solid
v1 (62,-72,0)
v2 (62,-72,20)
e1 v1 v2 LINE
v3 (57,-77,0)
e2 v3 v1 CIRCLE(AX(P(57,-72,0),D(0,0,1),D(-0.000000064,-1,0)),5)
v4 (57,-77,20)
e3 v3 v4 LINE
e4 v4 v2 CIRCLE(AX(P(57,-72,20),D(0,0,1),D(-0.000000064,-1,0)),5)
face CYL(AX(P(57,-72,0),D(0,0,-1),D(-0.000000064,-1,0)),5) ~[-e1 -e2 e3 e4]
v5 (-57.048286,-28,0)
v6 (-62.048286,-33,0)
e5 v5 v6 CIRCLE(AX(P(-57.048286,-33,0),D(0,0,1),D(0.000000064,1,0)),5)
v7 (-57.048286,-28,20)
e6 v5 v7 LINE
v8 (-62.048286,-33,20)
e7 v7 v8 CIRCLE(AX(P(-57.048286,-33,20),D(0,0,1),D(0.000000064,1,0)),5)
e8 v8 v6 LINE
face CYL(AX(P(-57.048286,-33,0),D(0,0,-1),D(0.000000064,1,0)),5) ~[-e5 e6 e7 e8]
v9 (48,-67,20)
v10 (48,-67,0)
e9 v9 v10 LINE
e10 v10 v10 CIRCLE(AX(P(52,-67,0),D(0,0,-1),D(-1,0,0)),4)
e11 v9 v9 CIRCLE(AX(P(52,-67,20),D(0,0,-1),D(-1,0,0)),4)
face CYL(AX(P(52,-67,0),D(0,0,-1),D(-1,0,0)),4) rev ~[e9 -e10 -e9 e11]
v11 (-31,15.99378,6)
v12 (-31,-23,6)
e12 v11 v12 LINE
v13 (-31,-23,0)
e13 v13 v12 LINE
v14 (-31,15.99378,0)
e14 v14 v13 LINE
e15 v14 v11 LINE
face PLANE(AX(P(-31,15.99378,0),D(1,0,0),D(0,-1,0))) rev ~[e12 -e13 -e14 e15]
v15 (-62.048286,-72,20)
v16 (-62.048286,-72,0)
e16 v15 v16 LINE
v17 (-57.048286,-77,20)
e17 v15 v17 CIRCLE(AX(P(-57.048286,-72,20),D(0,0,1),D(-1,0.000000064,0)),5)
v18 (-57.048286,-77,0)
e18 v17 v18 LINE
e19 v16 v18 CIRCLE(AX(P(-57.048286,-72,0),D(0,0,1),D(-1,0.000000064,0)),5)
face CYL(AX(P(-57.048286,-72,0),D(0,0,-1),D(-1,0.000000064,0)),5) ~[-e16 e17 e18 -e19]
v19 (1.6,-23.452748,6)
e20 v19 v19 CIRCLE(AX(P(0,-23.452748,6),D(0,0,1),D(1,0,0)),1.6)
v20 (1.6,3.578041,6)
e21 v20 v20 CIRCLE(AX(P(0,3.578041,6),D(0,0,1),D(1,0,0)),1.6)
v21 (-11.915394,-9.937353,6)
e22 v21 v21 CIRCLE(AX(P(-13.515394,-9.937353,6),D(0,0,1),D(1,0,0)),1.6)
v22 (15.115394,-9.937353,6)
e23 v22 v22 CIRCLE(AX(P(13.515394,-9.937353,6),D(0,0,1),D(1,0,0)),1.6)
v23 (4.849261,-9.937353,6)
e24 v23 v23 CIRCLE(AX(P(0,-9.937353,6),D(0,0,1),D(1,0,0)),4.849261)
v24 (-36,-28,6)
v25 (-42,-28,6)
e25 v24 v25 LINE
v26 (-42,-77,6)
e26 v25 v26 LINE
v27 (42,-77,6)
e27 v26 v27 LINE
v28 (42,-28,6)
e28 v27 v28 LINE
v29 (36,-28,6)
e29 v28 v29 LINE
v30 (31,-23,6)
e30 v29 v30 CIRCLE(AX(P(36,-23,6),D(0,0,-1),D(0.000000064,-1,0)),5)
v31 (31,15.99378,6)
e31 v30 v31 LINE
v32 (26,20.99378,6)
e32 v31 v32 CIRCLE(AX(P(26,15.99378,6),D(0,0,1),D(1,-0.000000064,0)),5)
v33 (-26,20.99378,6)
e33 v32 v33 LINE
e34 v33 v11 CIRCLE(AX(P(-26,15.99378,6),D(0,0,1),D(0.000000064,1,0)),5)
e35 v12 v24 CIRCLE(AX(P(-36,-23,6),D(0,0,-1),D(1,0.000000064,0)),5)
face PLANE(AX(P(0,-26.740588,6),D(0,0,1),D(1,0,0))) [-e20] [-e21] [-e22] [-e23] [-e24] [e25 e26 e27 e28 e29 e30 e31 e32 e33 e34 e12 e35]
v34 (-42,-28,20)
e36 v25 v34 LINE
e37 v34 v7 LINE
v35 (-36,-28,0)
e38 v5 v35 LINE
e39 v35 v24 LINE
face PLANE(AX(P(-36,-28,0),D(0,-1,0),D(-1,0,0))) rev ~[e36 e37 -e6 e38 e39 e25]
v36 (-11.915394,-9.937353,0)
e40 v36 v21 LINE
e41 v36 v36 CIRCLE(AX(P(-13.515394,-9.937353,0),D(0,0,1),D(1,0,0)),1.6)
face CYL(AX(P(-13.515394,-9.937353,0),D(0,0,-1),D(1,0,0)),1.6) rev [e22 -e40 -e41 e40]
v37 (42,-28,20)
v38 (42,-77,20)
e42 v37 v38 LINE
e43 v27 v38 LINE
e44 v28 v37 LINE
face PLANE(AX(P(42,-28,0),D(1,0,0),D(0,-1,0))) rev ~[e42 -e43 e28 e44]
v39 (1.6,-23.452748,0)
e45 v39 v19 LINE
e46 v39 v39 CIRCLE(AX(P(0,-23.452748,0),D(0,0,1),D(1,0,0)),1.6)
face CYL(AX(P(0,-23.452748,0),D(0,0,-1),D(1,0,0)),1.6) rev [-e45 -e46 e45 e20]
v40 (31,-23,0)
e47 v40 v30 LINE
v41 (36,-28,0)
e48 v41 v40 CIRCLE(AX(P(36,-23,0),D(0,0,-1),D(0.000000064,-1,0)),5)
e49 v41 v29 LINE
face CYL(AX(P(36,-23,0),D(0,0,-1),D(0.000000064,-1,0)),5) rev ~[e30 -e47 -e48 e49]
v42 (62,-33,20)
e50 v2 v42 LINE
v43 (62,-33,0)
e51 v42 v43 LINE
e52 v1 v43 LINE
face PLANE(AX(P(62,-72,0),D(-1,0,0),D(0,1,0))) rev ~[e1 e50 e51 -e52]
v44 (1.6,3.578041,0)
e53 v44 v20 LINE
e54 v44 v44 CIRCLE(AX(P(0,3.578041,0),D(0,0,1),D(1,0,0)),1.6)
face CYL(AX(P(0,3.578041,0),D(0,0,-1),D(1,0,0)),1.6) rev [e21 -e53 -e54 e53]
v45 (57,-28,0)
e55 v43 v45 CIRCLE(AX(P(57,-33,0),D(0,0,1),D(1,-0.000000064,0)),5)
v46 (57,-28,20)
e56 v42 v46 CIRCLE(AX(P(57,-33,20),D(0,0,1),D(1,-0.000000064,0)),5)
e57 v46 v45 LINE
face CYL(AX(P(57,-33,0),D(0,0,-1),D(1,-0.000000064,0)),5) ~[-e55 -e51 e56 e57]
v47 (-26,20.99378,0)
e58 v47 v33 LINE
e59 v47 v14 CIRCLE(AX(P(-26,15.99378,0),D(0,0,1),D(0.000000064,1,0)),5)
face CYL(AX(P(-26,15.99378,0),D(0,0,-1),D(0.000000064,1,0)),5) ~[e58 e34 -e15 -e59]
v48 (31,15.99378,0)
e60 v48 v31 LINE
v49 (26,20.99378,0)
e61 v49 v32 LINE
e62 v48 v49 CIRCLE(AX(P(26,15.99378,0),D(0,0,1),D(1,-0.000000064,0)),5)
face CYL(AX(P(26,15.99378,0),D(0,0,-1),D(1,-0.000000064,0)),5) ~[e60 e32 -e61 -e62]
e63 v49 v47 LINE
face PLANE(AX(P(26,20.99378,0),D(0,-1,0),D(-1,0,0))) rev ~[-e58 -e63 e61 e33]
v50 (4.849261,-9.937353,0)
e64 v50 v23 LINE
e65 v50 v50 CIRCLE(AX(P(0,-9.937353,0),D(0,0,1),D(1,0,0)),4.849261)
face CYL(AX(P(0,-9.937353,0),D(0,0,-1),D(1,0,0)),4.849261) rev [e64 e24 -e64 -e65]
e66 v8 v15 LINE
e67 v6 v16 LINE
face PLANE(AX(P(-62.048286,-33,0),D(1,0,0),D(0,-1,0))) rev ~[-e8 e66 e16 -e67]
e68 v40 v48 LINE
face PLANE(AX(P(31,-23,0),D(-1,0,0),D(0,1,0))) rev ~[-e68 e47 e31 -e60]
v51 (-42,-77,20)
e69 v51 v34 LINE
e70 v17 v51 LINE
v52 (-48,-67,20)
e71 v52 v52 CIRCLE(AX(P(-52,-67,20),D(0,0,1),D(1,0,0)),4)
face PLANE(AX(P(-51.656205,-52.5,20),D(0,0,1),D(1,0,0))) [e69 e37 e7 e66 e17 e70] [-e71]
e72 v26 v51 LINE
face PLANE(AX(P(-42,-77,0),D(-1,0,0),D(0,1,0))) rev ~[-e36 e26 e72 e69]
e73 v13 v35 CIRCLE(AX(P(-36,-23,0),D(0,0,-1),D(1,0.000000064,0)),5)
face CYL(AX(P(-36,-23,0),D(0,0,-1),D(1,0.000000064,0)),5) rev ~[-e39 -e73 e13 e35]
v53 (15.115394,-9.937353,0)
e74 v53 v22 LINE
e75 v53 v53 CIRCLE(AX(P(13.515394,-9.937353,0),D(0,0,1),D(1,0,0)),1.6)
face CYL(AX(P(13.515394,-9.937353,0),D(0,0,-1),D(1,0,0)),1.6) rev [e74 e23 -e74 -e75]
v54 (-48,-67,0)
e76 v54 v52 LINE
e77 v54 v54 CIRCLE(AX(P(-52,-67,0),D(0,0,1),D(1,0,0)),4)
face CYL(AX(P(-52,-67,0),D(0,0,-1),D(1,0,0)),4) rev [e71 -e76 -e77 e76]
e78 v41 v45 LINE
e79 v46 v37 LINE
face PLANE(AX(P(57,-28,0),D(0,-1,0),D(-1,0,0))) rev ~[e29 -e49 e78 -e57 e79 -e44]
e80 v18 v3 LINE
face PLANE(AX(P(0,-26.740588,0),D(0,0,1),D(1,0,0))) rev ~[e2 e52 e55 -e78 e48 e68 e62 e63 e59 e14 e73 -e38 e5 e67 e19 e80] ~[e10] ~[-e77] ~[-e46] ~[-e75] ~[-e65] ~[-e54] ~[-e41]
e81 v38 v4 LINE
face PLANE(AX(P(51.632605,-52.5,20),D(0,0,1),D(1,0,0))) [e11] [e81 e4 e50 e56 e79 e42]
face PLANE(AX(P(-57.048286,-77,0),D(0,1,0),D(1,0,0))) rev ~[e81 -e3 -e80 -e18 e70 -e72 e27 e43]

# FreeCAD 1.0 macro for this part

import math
import FreeCAD as App
import Part
import Sketcher
from FreeCAD import Vector
Q = App.Units.Quantity

doc = App.newDocument("Part")
body = doc.addObject("PartDesign::Body", "Body")

# Sketch on XY plane
sketch1 = doc.addObject("Sketcher::SketchObject", "Sketch")
body.addObject(sketch1)
sketch1.AttachmentSupport = (doc.XY_Plane, [""])
sketch1.MapMode = "FlatFace"
sketch1.addGeometry(Part.LineSegment(Vector(-57.048286, -77, 0), Vector(57, -77, 0)), False)
sketch1.addGeometry(Part.ArcOfCircle(Part.Circle(Vector(57, -72, 0), Vector(0, 0, 1), 5), math.radians(-90.000004), math.radians(0.000004)), False)
sketch1.addGeometry(Part.LineSegment(Vector(62, -72, 0), Vector(62, -33, 0)), False)
sketch1.addGeometry(Part.ArcOfCircle(Part.Circle(Vector(57, -33, 0), Vector(0, 0, 1), 5), math.radians(-0.000004), math.radians(90.000004)), False)
sketch1.addGeometry(Part.LineSegment(Vector(57, -28, 0), Vector(36, -28, 0)), False)
sketch1.addGeometry(Part.ArcOfCircle(Part.Circle(Vector(36, -23, 0), Vector(0, 0, 1), 5), math.radians(179.999996), math.radians(270.000004)), False)
sketch1.addGeometry(Part.LineSegment(Vector(31, -23, 0), Vector(31, 15.99378, 0)), False)
sketch1.addGeometry(Part.ArcOfCircle(Part.Circle(Vector(26, 15.99378, 0), Vector(0, 0, 1), 5), math.radians(-0.000004), math.radians(90.000004)), False)
sketch1.addGeometry(Part.LineSegment(Vector(26, 20.99378, 0), Vector(-26, 20.99378, 0)), False)
sketch1.addGeometry(Part.ArcOfCircle(Part.Circle(Vector(-26, 15.99378, 0), Vector(0, 0, 1), 5), math.radians(89.999996), math.radians(180.000004)), False)
sketch1.addGeometry(Part.LineSegment(Vector(-31, 15.99378, 0), Vector(-31, -23, 0)), False)
sketch1.addGeometry(Part.ArcOfCircle(Part.Circle(Vector(-36, -23, 0), Vector(0, 0, 1), 5), math.radians(-90.000004), math.radians(0.000004)), False)
sketch1.addGeometry(Part.LineSegment(Vector(-36, -28, 0), Vector(-57.048286, -28, 0)), False)
sketch1.addGeometry(Part.ArcOfCircle(Part.Circle(Vector(-57.048286, -33, 0), Vector(0, 0, 1), 5), math.radians(89.999996), math.radians(180.000004)), False)
sketch1.addGeometry(Part.LineSegment(Vector(-62.048286, -33, 0), Vector(-62.048286, -72, 0)), False)
sketch1.addGeometry(Part.ArcOfCircle(Part.Circle(Vector(-57.048286, -72, 0), Vector(0, 0, 1), 5), math.radians(179.999996), math.radians(270.000004)), False)
sketch1.addGeometry(Part.Circle(Vector(-52, -67, 0), Vector(0, 0, 1), 4), False)
sketch1.addGeometry(Part.Circle(Vector(52, -67, 0), Vector(0, 0, 1), 4), False)
sketch1.addGeometry(Part.Circle(Vector(-13.515394, -9.937353, 0), Vector(0, 0, 1), 1.6), False)
sketch1.addGeometry(Part.Circle(Vector(0, -23.452748, 0), Vector(0, 0, 1), 1.6), False)
sketch1.addGeometry(Part.Circle(Vector(0, -9.937353, 0), Vector(0, 0, 1), 4.849261), False)
sketch1.addGeometry(Part.Circle(Vector(13.515394, -9.937353, 0), Vector(0, 0, 1), 1.6), False)
sketch1.addGeometry(Part.Circle(Vector(0, 3.578041, 0), Vector(0, 0, 1), 1.6), False)
sketch1.addConstraint(Sketcher.Constraint("Tangent", 0, 2, 1, 1))
sketch1.addConstraint(Sketcher.Constraint("Tangent", 1, 2, 2, 1))
sketch1.addConstraint(Sketcher.Constraint("Tangent", 2, 2, 3, 1))
sketch1.addConstraint(Sketcher.Constraint("Tangent", 3, 2, 4, 1))
sketch1.addConstraint(Sketcher.Constraint("Tangent", 4, 2, 5, 2))
sketch1.addConstraint(Sketcher.Constraint("Tangent", 5, 1, 6, 1))
sketch1.addConstraint(Sketcher.Constraint("Tangent", 6, 2, 7, 1))
sketch1.addConstraint(Sketcher.Constraint("Tangent", 7, 2, 8, 1))
sketch1.addConstraint(Sketcher.Constraint("Tangent", 8, 2, 9, 1))
sketch1.addConstraint(Sketcher.Constraint("Tangent", 9, 2, 10, 1))
sketch1.addConstraint(Sketcher.Constraint("Tangent", 10, 2, 11, 2))
sketch1.addConstraint(Sketcher.Constraint("Tangent", 11, 1, 12, 1))
sketch1.addConstraint(Sketcher.Constraint("Tangent", 12, 2, 13, 1))
sketch1.addConstraint(Sketcher.Constraint("Tangent", 13, 2, 14, 1))
sketch1.addConstraint(Sketcher.Constraint("Tangent", 14, 2, 15, 1))
sketch1.addConstraint(Sketcher.Constraint("Tangent", 15, 2, 0, 1))
sketch1.addConstraint(Sketcher.Constraint("Horizontal", 0))
sketch1.addConstraint(Sketcher.Constraint("Vertical", 2))
sketch1.addConstraint(Sketcher.Constraint("Horizontal", 4))
sketch1.addConstraint(Sketcher.Constraint("Vertical", 6))
sketch1.addConstraint(Sketcher.Constraint("Horizontal", 8))
sketch1.addConstraint(Sketcher.Constraint("Vertical", 10))
sketch1.addConstraint(Sketcher.Constraint("Horizontal", 12))
sketch1.addConstraint(Sketcher.Constraint("Vertical", 14))
sketch1.addConstraint(Sketcher.Constraint("Equal", 1, 3))
sketch1.addConstraint(Sketcher.Constraint("Equal", 3, 5))
sketch1.addConstraint(Sketcher.Constraint("Equal", 5, 7))
sketch1.addConstraint(Sketcher.Constraint("Equal", 7, 9))
sketch1.addConstraint(Sketcher.Constraint("Equal", 9, 11))
sketch1.addConstraint(Sketcher.Constraint("Equal", 11, 13))
sketch1.addConstraint(Sketcher.Constraint("Equal", 13, 15))
sketch1.addConstraint(Sketcher.Constraint("Equal", 16, 17))
sketch1.addConstraint(Sketcher.Constraint("Equal", 18, 19))
sketch1.addConstraint(Sketcher.Constraint("Equal", 19, 21))
sketch1.addConstraint(Sketcher.Constraint("Equal", 21, 22))
sketch1.addConstraint(Sketcher.Constraint("Symmetric", 5, 3, 11, 3, -2))
sketch1.addConstraint(Sketcher.Constraint("Symmetric", 16, 3, 17, 3, -2))
sketch1.addConstraint(Sketcher.Constraint("Symmetric", 18, 3, 21, 3, -2))
sketch1.addConstraint(Sketcher.Constraint("PointOnObject", 19, 3, -2))
sketch1.addConstraint(Sketcher.Constraint("PointOnObject", 20, 3, -2))
sketch1.addConstraint(Sketcher.Constraint("PointOnObject", 22, 3, -2))
sketch1.addConstraint(Sketcher.Constraint("Horizontal", 18, 3, 20, 3))
sketch1.addConstraint(Sketcher.Constraint("Diameter", 16, Q("8 mm")))
sketch1.addConstraint(Sketcher.Constraint("Radius", 1, Q("5 mm")))
sketch1.addConstraint(Sketcher.Constraint("Diameter", 18, Q("3.2 mm")))
sketch1.addConstraint(Sketcher.Constraint("DistanceX", 4, 2, 4, 1, Q("21 mm")))
sketch1.addConstraint(Sketcher.Constraint("DistanceX", 8, 2, 8, 1, Q("52 mm")))
sketch1.addConstraint(Sketcher.Constraint("DistanceY", 2, 1, 2, 2, Q("39 mm")))
sketch1.addConstraint(Sketcher.Constraint("DistanceY", 1, 3, -1, 1, Q("72 mm")))
sketch1.addConstraint(Sketcher.Constraint("DistanceX", 16, 3, -1, 1, Q("52 mm")))
sketch1.addConstraint(Sketcher.Constraint("DistanceY", 16, 3, -1, 1, Q("67 mm")))
sketch1.addConstraint(Sketcher.Constraint("Diameter", 20, Q("9.698522 mm")))
sketch1.addConstraint(Sketcher.Constraint("DistanceY", 6, 1, 6, 2, Q("38.99378 mm")))
sketch1.addConstraint(Sketcher.Constraint("DistanceX", 0, 1, 0, 2, Q("114.048286 mm")))
sketch1.addConstraint(Sketcher.Constraint("DistanceY", -1, 1, 22, 3, Q("3.578041 mm")))
sketch1.addConstraint(Sketcher.Constraint("DistanceY", 19, 3, 7, 3, Q("39.446528 mm")))
sketch1.addConstraint(Sketcher.Constraint("DistanceX", 18, 3, 21, 3, Q("27.030788 mm")))
sketch1.addConstraint(Sketcher.Constraint("DistanceY", 18, 3, -1, 1, Q("9.937353 mm")))
pad1 = doc.addObject("PartDesign::Pad", "Pad")
body.addObject(pad1)
pad1.Profile = sketch1
pad1.Length = 6

# Sketch on XY plane
sketch2 = doc.addObject("Sketcher::SketchObject", "Sketch001")
body.addObject(sketch2)
sketch2.AttachmentSupport = (doc.XY_Plane, [""])
sketch2.MapMode = "FlatFace"
sketch2.addGeometry(Part.LineSegment(Vector(42, -28, 0), Vector(42, -77, 0)), False)
sketch2.addGeometry(Part.LineSegment(Vector(42, -77, 0), Vector(57, -77, 0)), False)
sketch2.addGeometry(Part.ArcOfCircle(Part.Circle(Vector(57, -72, 0), Vector(0, 0, 1), 5), math.radians(-90.000004), math.radians(0.000004)), False)
sketch2.addGeometry(Part.LineSegment(Vector(62, -72, 0), Vector(62, -33, 0)), False)
sketch2.addGeometry(Part.ArcOfCircle(Part.Circle(Vector(57, -33, 0), Vector(0, 0, 1), 5), math.radians(-0.000004), math.radians(90.000004)), False)
sketch2.addGeometry(Part.LineSegment(Vector(57, -28, 0), Vector(42, -28, 0)), False)
sketch2.addGeometry(Part.Circle(Vector(52, -67, 0), Vector(0, 0, 1), 4), False)
sketch2.addGeometry(Part.LineSegment(Vector(-42, -77, 0), Vector(-42, -28, 0)), False)
sketch2.addGeometry(Part.LineSegment(Vector(-42, -28, 0), Vector(-57.048286, -28, 0)), False)
sketch2.addGeometry(Part.ArcOfCircle(Part.Circle(Vector(-57.048286, -33, 0), Vector(0, 0, 1), 5), math.radians(89.999996), math.radians(180.000004)), False)
sketch2.addGeometry(Part.LineSegment(Vector(-62.048286, -33, 0), Vector(-62.048286, -72, 0)), False)
sketch2.addGeometry(Part.ArcOfCircle(Part.Circle(Vector(-57.048286, -72, 0), Vector(0, 0, 1), 5), math.radians(179.999996), math.radians(270.000004)), False)
sketch2.addGeometry(Part.LineSegment(Vector(-57.048286, -77, 0), Vector(-42, -77, 0)), False)
sketch2.addGeometry(Part.Circle(Vector(-52, -67, 0), Vector(0, 0, 1), 4), False)
sketch2.addConstraint(Sketcher.Constraint("Coincident", 0, 2, 1, 1))
sketch2.addConstraint(Sketcher.Constraint("Tangent", 1, 2, 2, 1))
sketch2.addConstraint(Sketcher.Constraint("Tangent", 2, 2, 3, 1))
sketch2.addConstraint(Sketcher.Constraint("Tangent", 3, 2, 4, 1))
sketch2.addConstraint(Sketcher.Constraint("Tangent", 4, 2, 5, 1))
sketch2.addConstraint(Sketcher.Constraint("Coincident", 5, 2, 0, 1))
sketch2.addConstraint(Sketcher.Constraint("Coincident", 7, 2, 8, 1))
sketch2.addConstraint(Sketcher.Constraint("Tangent", 8, 2, 9, 1))
sketch2.addConstraint(Sketcher.Constraint("Tangent", 9, 2, 10, 1))
sketch2.addConstraint(Sketcher.Constraint("Tangent", 10, 2, 11, 1))
sketch2.addConstraint(Sketcher.Constraint("Tangent", 11, 2, 12, 1))
sketch2.addConstraint(Sketcher.Constraint("Coincident", 12, 2, 7, 1))
sketch2.addConstraint(Sketcher.Constraint("Vertical", 0))
sketch2.addConstraint(Sketcher.Constraint("Horizontal", 1))
sketch2.addConstraint(Sketcher.Constraint("Vertical", 3))
sketch2.addConstraint(Sketcher.Constraint("Horizontal", 5))
sketch2.addConstraint(Sketcher.Constraint("Vertical", 7))
sketch2.addConstraint(Sketcher.Constraint("Horizontal", 8))
sketch2.addConstraint(Sketcher.Constraint("Vertical", 10))
sketch2.addConstraint(Sketcher.Constraint("Horizontal", 12))
sketch2.addConstraint(Sketcher.Constraint("Equal", 2, 4))
sketch2.addConstraint(Sketcher.Constraint("Equal", 4, 9))
sketch2.addConstraint(Sketcher.Constraint("Equal", 9, 11))
sketch2.addConstraint(Sketcher.Constraint("Equal", 6, 13))
sketch2.addConstraint(Sketcher.Constraint("Symmetric", 6, 3, 13, 3, -2))
sketch2.addConstraint(Sketcher.Constraint("Symmetric", 5, 2, 7, 2, -2))
sketch2.addConstraint(Sketcher.Constraint("Horizontal", 2, 3, 11, 3))
sketch2.addConstraint(Sketcher.Constraint("Diameter", 6, Q("8 mm")))
sketch2.addConstraint(Sketcher.Constraint("Radius", 2, Q("5 mm")))
sketch2.addConstraint(Sketcher.Constraint("DistanceX", 1, 1, 1, 2, Q("15 mm")))
sketch2.addConstraint(Sketcher.Constraint("DistanceY", 0, 2, 0, 1, Q("49 mm")))
sketch2.addConstraint(Sketcher.Constraint("DistanceX", -1, 1, 2, 3, Q("57 mm")))
sketch2.addConstraint(Sketcher.Constraint("DistanceY", 2, 3, -1, 1, Q("72 mm")))
sketch2.addConstraint(Sketcher.Constraint("DistanceX", -1, 1, 6, 3, Q("52 mm")))
sketch2.addConstraint(Sketcher.Constraint("DistanceY", 6, 3, -1, 1, Q("67 mm")))
sketch2.addConstraint(Sketcher.Constraint("DistanceX", 8, 2, 8, 1, Q("15.048286 mm")))
pad2 = doc.addObject("PartDesign::Pad", "Pad001")
body.addObject(pad2)
pad2.Profile = sketch2
pad2.Length = 20

doc.recompute()
